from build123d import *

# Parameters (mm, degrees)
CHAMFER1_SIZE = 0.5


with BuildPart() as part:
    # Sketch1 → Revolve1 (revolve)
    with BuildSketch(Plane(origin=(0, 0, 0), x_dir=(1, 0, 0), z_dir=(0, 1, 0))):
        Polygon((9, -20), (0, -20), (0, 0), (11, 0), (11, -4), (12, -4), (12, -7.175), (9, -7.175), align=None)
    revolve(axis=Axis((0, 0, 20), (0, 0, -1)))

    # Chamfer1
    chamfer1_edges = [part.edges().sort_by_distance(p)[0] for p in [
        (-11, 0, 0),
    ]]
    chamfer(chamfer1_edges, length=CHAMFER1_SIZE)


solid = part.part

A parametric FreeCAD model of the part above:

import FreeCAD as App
import Part
import Sketcher
from FreeCAD import Vector


def edges_at(feature, points):
    """Names of the edges that pass closest to the given points."""
    edges = feature.Shape.Edges
    near = lambda p: min(range(len(edges)), key=lambda i: edges[i].distToShape(Part.Vertex(*p))[0])
    return sorted({f"Edge{near(p) + 1}" for p in points})

doc = App.newDocument("Part")
params = doc.addObject("Spreadsheet::Sheet", "Params")
for row, (alias, value) in enumerate([
    ("sketch1_width", "9 mm"),
    ("sketch1_width2", "3 mm"),
    ("sketch1_width3", "1 mm"),
    ("sketch1_height", "4 mm"),
    ("sketch1_height2", "20 mm"),
    ("revolution_angle", "360 deg"),
    ("chamfer_size", "0.5 mm"),
], start=1):
    params.set(f"A{row}", alias)
    params.set(f"B{row}", "=" + value)
    params.setAlias(f"B{row}", alias)

body = doc.addObject("PartDesign::Body", "Body")

# Sketch on XZ plane
sketch1 = doc.addObject("Sketcher::SketchObject", "Sketch")
body.addObject(sketch1)
sketch1.AttachmentSupport = (doc.XZ_Plane, [""])
sketch1.MapMode = "FlatFace"
sketch1.addGeometry([
    Part.LineSegment(Vector(0, 20, 0), Vector(9, 20, 0)),  # 0
    Part.LineSegment(Vector(9, 20, 0), Vector(9, 7.2, 0)),  # 1
    Part.LineSegment(Vector(9, 7.2, 0), Vector(12, 7.2, 0)),  # 2
    Part.LineSegment(Vector(12, 7.2, 0), Vector(12, 4, 0)),  # 3
    Part.LineSegment(Vector(12, 4, 0), Vector(11, 4, 0)),  # 4
    Part.LineSegment(Vector(11, 4, 0), Vector(11, 0, 0)),  # 5
    Part.LineSegment(Vector(11, 0, 0), Vector(0, 0, 0)),  # 6
    Part.LineSegment(Vector(0, 0, 0), Vector(0, 20, 0)),  # 7
], False)
sketch1.addConstraint([
    Sketcher.Constraint("Coincident", 0, 2, 1, 1),
    Sketcher.Constraint("Coincident", 1, 2, 2, 1),
    Sketcher.Constraint("Coincident", 2, 2, 3, 1),
    Sketcher.Constraint("Coincident", 3, 2, 4, 1),
    Sketcher.Constraint("Coincident", 4, 2, 5, 1),
    Sketcher.Constraint("Coincident", 5, 2, 6, 1),
    Sketcher.Constraint("Coincident", 6, 2, 7, 1),
    Sketcher.Constraint("Coincident", 7, 2, 0, 1),
    Sketcher.Constraint("Horizontal", 0),
    Sketcher.Constraint("Vertical", 1),
    Sketcher.Constraint("Horizontal", 2),
    Sketcher.Constraint("Vertical", 3),
    Sketcher.Constraint("Horizontal", 4),
    Sketcher.Constraint("Vertical", 5),
    Sketcher.Constraint("Horizontal", 6),
    Sketcher.Constraint("Vertical", 7),
    Sketcher.Constraint("Coincident", 6, 2, -1, 1),
    Sketcher.Constraint("DistanceX", 0, 1, 0, 2, 9.0),
    Sketcher.Constraint("DistanceX", 2, 1, 2, 2, 3.0),
    Sketcher.Constraint("DistanceX", 4, 2, 4, 1, 1.0),
    Sketcher.Constraint("DistanceY", 5, 2, 5, 1, 4.0),
    Sketcher.Constraint("DistanceY", 7, 1, 7, 2, 20.0),
    Sketcher.Constraint("DistanceY", 1, 2, 1, 1, 12.825),
])
sketch1.setExpression("Constraints[17]", "Params.sketch1_width")
sketch1.setExpression("Constraints[18]", "Params.sketch1_width2")
sketch1.setExpression("Constraints[19]", "Params.sketch1_width3")
sketch1.setExpression("Constraints[20]", "Params.sketch1_height")
sketch1.setExpression("Constraints[21]", "Params.sketch1_height2")
revolution = doc.addObject("PartDesign::Revolution", "Revolution")
body.addObject(revolution)
revolution.Profile = sketch1
revolution.ReferenceAxis = (sketch1, ["V_Axis"])
revolution.setExpression("Angle", "Params.revolution_angle")
doc.recompute()

chamfer = doc.addObject("PartDesign::Chamfer", "Chamfer")
body.addObject(chamfer)
chamfer.Base = (revolution, edges_at(revolution, [(-11, 0, 0)]))
chamfer.setExpression("Size", "Params.chamfer_size")

doc.recompute()
